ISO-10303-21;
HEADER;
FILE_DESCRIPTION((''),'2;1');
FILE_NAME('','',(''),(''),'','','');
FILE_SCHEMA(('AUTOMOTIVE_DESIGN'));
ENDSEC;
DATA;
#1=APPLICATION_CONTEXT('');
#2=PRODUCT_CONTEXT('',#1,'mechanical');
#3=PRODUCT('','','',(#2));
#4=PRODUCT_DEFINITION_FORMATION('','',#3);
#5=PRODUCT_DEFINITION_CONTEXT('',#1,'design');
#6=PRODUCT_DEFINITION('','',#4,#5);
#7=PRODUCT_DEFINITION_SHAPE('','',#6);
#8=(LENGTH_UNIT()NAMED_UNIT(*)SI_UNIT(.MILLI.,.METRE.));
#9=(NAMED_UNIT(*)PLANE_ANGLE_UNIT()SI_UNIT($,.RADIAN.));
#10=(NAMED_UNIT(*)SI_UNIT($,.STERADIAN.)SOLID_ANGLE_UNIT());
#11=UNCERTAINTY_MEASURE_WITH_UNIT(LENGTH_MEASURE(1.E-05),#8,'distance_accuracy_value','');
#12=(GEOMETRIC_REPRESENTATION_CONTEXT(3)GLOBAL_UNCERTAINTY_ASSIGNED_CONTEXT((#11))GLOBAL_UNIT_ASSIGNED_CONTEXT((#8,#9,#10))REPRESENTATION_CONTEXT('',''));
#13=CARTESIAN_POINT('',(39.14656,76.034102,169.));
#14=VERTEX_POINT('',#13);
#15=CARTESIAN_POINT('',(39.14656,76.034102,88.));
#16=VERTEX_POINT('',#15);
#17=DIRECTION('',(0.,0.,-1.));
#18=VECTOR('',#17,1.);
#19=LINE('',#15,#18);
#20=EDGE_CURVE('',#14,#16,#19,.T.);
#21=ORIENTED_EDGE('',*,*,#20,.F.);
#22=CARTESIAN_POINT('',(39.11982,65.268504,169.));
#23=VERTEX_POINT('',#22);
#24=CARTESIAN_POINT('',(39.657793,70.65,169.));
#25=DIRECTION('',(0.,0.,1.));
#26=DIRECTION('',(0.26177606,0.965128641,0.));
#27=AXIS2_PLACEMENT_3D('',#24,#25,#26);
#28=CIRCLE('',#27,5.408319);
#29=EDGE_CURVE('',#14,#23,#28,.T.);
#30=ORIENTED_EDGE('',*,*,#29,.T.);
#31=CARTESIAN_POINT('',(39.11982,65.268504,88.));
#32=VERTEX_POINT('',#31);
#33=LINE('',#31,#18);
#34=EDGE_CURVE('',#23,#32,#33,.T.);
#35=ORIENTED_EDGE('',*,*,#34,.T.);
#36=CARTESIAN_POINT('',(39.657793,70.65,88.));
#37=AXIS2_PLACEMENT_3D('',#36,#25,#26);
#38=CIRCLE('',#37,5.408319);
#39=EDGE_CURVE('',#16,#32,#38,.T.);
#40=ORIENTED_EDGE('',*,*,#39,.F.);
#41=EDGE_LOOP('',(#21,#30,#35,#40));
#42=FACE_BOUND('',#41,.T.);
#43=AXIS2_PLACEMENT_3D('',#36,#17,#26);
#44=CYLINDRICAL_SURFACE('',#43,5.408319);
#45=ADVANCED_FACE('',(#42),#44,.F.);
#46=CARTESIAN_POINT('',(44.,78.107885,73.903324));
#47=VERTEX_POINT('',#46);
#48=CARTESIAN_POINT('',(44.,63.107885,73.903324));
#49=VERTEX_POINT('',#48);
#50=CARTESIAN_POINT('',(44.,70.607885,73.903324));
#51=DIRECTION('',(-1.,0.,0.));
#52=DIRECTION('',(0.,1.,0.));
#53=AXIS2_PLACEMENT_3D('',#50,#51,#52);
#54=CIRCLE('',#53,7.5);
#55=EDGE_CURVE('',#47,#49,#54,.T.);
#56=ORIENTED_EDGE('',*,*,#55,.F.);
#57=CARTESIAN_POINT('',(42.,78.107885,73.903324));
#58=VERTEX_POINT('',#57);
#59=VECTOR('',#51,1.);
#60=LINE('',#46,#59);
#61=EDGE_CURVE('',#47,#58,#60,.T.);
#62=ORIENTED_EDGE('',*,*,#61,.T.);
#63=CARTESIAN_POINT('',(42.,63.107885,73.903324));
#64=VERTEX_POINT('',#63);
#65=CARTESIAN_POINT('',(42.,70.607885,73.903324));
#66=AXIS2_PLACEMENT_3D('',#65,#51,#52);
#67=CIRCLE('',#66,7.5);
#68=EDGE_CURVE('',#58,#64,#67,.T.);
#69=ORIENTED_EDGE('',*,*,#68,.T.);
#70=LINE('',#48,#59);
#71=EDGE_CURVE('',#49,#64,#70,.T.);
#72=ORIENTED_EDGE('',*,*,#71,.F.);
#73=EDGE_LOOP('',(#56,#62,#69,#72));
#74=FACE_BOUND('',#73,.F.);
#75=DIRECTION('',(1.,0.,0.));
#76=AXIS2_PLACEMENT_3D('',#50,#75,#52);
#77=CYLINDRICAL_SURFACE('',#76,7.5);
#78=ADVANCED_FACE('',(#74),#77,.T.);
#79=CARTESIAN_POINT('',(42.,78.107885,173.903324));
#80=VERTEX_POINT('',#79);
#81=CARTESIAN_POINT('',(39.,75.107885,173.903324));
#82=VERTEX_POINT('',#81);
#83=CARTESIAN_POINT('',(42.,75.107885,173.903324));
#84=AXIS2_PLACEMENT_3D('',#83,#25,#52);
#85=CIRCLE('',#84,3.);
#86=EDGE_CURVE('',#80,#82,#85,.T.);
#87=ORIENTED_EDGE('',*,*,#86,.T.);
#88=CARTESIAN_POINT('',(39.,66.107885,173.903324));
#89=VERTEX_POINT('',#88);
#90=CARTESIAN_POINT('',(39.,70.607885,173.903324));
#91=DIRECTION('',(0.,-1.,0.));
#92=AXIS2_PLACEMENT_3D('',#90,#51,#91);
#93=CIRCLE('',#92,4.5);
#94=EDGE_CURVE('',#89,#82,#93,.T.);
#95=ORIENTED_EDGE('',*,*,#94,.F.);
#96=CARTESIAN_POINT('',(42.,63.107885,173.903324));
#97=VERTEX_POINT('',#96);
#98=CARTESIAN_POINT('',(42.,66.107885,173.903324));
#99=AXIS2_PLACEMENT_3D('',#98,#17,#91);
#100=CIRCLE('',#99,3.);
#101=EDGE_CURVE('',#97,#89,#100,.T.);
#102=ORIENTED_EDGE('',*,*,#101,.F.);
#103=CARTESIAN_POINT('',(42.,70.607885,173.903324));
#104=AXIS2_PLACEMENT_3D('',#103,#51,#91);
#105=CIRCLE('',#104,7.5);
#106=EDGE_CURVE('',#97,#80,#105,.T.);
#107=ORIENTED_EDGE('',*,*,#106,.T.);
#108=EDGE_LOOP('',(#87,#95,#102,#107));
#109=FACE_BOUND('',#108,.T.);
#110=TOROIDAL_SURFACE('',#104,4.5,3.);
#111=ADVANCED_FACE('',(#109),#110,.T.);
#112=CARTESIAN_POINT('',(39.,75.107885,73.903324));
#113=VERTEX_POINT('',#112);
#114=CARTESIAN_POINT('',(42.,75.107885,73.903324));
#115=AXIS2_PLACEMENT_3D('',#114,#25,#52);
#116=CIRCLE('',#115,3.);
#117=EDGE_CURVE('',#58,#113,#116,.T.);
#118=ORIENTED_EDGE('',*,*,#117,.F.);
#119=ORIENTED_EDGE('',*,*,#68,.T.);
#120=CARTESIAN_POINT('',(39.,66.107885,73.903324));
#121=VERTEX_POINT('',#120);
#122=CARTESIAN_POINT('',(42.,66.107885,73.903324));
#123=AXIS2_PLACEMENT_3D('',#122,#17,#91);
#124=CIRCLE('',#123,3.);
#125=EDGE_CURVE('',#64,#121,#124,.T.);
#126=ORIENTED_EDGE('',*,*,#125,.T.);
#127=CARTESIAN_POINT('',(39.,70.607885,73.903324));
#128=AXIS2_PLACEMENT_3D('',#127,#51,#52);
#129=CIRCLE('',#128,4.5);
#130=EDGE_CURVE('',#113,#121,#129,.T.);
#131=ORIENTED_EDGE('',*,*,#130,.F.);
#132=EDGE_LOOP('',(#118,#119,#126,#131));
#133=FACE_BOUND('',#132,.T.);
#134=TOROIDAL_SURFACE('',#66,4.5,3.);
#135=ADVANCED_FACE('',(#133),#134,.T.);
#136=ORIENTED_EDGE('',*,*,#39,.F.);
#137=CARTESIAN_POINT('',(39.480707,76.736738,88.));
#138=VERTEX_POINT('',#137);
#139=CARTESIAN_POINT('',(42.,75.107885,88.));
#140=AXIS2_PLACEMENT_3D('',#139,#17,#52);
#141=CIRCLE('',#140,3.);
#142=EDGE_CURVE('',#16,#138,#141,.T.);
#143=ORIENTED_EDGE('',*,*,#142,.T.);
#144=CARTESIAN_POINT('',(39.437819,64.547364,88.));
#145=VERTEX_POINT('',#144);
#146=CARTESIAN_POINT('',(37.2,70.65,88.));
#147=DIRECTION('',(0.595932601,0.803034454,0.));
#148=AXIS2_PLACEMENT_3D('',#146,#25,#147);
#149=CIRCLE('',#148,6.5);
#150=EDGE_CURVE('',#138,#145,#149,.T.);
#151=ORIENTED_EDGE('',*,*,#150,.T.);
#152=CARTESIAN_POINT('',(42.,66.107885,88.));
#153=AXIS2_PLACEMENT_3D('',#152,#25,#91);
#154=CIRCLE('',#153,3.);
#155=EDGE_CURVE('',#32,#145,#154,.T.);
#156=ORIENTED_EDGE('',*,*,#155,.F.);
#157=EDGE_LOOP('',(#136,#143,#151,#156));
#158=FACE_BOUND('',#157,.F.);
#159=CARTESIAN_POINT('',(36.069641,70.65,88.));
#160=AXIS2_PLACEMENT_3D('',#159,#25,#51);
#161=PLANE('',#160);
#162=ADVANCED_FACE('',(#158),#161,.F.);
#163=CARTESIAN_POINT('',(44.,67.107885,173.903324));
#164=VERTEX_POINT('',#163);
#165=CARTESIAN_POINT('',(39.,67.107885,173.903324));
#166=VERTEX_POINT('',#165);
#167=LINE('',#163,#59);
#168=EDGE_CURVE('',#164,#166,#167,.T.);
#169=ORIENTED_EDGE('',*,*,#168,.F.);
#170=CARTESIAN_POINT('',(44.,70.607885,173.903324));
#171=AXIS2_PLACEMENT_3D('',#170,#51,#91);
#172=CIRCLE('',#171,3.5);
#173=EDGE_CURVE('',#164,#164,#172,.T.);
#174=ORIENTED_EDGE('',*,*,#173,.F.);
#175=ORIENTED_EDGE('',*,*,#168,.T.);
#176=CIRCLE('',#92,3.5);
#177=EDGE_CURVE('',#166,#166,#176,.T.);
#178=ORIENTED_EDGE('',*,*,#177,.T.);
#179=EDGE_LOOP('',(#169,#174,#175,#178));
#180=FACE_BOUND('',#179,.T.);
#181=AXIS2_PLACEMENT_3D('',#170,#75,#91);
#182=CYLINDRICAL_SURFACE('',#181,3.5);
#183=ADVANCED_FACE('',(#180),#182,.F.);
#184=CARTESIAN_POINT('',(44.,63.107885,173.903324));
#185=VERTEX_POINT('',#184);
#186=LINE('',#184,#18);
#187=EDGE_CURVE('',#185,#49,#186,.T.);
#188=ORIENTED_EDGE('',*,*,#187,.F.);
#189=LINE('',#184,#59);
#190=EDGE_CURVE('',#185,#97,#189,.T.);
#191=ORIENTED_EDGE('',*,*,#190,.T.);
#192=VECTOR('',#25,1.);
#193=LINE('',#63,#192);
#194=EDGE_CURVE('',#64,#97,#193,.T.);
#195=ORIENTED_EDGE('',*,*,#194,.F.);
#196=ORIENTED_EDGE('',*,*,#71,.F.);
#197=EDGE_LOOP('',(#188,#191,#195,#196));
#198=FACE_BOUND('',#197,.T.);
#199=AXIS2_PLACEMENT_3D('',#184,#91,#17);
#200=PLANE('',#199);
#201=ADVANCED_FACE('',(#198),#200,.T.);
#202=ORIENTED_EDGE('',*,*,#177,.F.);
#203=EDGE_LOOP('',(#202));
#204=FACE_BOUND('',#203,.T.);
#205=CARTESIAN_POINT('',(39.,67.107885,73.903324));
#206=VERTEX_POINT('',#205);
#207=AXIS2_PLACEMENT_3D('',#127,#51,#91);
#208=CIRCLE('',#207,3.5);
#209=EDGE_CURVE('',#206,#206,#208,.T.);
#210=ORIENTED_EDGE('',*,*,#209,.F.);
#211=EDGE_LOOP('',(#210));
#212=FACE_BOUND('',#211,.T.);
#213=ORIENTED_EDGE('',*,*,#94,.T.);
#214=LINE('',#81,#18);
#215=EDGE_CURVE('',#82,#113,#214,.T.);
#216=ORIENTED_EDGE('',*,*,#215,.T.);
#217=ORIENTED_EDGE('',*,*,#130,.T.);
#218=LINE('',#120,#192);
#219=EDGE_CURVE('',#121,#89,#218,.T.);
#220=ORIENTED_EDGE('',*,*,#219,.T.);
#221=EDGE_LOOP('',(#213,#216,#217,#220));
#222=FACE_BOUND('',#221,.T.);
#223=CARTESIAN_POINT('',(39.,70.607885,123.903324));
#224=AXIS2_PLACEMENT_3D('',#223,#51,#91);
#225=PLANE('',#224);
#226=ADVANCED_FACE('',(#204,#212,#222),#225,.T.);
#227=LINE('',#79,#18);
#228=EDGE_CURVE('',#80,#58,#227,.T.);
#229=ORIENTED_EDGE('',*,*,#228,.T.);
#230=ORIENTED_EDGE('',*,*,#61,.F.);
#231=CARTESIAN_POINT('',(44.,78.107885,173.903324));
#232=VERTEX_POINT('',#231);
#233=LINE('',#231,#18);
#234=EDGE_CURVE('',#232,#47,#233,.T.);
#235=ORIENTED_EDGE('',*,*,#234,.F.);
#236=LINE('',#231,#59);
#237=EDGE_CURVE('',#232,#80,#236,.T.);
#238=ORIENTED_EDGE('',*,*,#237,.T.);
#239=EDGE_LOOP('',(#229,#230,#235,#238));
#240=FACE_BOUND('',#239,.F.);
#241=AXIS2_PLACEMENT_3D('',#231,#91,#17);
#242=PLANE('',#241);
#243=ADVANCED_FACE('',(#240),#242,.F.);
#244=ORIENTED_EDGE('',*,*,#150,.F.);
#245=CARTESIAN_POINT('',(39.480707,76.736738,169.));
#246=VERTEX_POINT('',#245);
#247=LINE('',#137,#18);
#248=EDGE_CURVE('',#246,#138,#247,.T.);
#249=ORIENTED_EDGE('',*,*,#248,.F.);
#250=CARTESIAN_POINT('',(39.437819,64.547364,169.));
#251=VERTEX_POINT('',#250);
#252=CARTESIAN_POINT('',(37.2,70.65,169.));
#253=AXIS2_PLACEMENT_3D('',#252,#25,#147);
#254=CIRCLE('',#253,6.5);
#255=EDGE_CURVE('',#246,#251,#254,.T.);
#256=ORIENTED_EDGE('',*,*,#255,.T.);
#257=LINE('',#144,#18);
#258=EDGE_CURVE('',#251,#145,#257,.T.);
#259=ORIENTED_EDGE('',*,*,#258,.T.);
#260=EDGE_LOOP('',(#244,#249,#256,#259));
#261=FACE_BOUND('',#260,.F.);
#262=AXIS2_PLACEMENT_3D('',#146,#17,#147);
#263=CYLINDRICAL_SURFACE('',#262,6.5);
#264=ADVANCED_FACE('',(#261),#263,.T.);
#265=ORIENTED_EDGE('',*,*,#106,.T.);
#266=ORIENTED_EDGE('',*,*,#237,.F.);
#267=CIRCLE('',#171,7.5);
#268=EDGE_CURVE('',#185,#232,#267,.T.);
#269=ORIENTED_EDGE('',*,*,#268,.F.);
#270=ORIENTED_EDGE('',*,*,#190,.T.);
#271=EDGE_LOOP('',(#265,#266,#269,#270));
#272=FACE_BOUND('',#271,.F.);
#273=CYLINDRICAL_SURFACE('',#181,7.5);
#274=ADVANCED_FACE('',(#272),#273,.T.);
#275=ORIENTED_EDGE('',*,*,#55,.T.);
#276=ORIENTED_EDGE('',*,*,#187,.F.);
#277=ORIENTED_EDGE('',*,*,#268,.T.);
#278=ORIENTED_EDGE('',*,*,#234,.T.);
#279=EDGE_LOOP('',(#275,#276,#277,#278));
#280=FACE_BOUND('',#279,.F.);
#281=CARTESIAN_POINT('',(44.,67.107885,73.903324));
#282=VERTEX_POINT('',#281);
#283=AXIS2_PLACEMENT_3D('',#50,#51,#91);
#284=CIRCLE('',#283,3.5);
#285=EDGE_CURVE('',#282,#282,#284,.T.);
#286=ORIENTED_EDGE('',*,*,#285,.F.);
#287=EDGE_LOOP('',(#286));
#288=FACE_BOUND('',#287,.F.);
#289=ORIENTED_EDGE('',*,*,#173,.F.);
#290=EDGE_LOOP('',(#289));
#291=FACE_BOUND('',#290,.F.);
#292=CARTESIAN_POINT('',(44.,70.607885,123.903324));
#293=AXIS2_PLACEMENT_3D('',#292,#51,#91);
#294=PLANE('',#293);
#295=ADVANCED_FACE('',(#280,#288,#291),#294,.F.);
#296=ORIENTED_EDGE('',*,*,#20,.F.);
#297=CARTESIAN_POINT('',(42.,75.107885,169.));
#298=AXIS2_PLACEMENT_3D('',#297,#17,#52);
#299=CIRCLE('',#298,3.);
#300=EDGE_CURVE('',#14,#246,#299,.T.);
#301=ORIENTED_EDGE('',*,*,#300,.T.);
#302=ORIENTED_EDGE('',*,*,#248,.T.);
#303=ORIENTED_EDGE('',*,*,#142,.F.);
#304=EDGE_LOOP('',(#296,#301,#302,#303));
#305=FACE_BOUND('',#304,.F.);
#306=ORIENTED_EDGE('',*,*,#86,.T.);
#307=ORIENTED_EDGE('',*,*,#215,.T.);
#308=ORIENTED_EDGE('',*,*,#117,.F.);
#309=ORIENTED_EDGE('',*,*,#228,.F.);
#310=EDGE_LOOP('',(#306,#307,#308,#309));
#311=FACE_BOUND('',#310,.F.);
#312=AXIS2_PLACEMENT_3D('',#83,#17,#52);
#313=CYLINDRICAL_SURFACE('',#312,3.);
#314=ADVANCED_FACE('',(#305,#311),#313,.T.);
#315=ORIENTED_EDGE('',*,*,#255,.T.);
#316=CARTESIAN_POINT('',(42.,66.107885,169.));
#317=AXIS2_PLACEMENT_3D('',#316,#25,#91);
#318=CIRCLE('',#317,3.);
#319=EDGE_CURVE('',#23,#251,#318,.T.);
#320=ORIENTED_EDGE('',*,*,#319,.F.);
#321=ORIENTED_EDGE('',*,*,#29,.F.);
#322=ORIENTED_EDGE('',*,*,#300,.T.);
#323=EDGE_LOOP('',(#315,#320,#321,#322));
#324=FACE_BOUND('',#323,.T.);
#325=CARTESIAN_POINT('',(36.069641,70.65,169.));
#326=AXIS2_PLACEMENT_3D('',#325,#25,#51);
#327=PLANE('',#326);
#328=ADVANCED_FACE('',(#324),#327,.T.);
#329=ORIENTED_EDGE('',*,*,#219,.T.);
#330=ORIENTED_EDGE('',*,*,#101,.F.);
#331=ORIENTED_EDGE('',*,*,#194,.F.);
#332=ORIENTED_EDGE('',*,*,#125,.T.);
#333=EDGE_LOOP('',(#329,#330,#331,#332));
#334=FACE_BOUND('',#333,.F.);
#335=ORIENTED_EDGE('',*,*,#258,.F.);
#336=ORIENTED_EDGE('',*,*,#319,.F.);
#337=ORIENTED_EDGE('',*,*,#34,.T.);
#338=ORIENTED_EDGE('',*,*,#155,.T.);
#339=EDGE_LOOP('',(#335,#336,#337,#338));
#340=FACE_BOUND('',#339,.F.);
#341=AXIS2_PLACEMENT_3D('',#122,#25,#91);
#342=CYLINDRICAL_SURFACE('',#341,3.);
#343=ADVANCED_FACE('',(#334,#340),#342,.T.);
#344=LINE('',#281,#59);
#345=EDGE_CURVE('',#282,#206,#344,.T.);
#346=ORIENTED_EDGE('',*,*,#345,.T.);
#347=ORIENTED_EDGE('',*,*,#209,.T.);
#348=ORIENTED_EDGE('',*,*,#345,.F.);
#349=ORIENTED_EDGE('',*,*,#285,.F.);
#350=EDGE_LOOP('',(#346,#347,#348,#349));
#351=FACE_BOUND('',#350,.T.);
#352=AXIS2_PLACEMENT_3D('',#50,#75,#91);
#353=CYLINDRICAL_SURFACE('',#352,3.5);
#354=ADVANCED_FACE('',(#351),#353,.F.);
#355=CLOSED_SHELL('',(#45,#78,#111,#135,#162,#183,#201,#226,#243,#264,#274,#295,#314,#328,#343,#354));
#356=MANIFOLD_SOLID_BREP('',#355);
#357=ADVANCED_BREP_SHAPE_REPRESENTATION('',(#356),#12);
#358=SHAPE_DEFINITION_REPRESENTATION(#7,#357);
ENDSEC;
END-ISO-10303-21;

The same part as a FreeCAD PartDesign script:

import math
import FreeCAD as App
import Part
import Sketcher

V = App.Vector
Q = App.Units.Quantity


def edges_at(feature, points):
    """Names of the edges that pass closest to the given points."""
    edges = feature.Shape.Edges
    near = lambda p: min(range(len(edges)), key=lambda i: edges[i].distToShape(Part.Vertex(*p))[0])
    return sorted({f"Edge{near(p) + 1}" for p in points})

doc = App.newDocument("Part")
params = doc.addObject("Spreadsheet::Sheet", "Params")
for row, (alias, value) in enumerate([
    ("sketch1_diameter", "7 mm"),
    ("sketch1_radius", "7.5 mm"),
    ("sketch1_height", "100 mm"),
    ("pad1_length", "5 mm"),
    ("fillet_radius", "3 mm"),
    ("sketch2_radius", "6.5 mm"),
    ("pad2_length", "81 mm"),
], start=1):
    params.set(f"A{row}", alias)
    params.set(f"B{row}", "=" + value)
    params.setAlias(f"B{row}", alias)

body = doc.addObject("PartDesign::Body", "Body")

# Sketch on YZ plane
sketch1 = body.newObject("Sketcher::SketchObject", "Sketch")
sketch1.AttachmentSupport = (doc.getObject("YZ_Plane"), [""])
sketch1.MapMode = "FlatFace"
sketch1.addGeometry([
    Part.ArcOfCircle(Part.Circle(V(70.6, 173.9, 0), V(0, 0, 1), 7.5), math.radians(0), math.radians(180)),  # 0
    Part.LineSegment(V(78.1, 173.9, 0), V(78.1, 73.9, 0)),  # 1
    Part.ArcOfCircle(Part.Circle(V(70.6, 73.9, 0), V(0, 0, 1), 7.5), math.radians(180), math.radians(360)),  # 2
    Part.LineSegment(V(63.1, 73.9, 0), V(63.1, 173.9, 0)),  # 3
    Part.Circle(V(70.6, 73.9, 0), V(0, 0, 1), 3.5),  # 4
    Part.Circle(V(70.6, 173.9, 0), V(0, 0, 1), 3.5),  # 5
], False)
sketch1.addConstraint([
    Sketcher.Constraint("Tangent", 0, 1, 1, 1),
    Sketcher.Constraint("Tangent", 1, 2, 2, 2),
    Sketcher.Constraint("Tangent", 2, 1, 3, 1),
    Sketcher.Constraint("Tangent", 3, 2, 0, 2),
    Sketcher.Constraint("Vertical", 1),
    Sketcher.Constraint("Vertical", 3),
    Sketcher.Constraint("Coincident", 4, 3, 2, 3),
    Sketcher.Constraint("Coincident", 5, 3, 0, 3),
    Sketcher.Constraint("Equal", 4, 5),
    Sketcher.Constraint("Diameter", 4, Q("7 mm")),
    Sketcher.Constraint("Radius", 0, Q("7.5 mm")),
    Sketcher.Constraint("DistanceY", 1, 2, 1, 1, Q("100 mm")),
    Sketcher.Constraint("DistanceX", -1, 1, 0, 3, Q("70.607885 mm")),
    Sketcher.Constraint("DistanceY", -1, 1, 0, 3, Q("173.903324 mm")),
])
sketch1.setExpression("Constraints[9]", "Params.sketch1_diameter")
sketch1.setExpression("Constraints[10]", "Params.sketch1_radius")
sketch1.setExpression("Constraints[11]", "Params.sketch1_height")
pad1 = body.newObject("PartDesign::Pad", "Pad")
pad1.Profile = sketch1
pad1.setExpression("Length", "Params.pad1_length")
pad1.Reversed = True
body2 = doc.addObject("PartDesign::Body", "Body001")
doc.recompute()

body.Placement = App.Placement(V(48, 0, 0), App.Rotation(V(0, 0, 1), 0))
boolean = body2.newObject("PartDesign::Boolean", "Boolean")
boolean.Type = "Fuse"
boolean.addObjects([body])
doc.recompute()

fillet = body2.newObject("PartDesign::Fillet", "Fillet")
fillet.Base = (boolean, edges_at(boolean, [(43, 78.108, 123.903)]))
fillet.setExpression("Radius", "Params.fillet_radius")
body3 = doc.addObject("PartDesign::Body", "Body002")

# Sketch on XZ plane
sketch2 = body3.newObject("Sketcher::SketchObject", "Sketch001")
sketch2.AttachmentSupport = (doc.getObject("XZ_Plane002"), [""])
sketch2.MapMode = "FlatFace"
sketch2.addGeometry([
    Part.ArcOfCircle(Part.Circle(V(0, 0, 0), V(0, 0, 1), 7), math.radians(-127), math.radians(127)),
    Part.ArcOfCircle(Part.Circle(V(-2, 0, 0), V(0, 0, 1), 5), math.radians(-105), math.radians(105)),
], False)
sketch2.addConstraint([
    Sketcher.Constraint("Coincident", 0, 1, 1, 1),
    Sketcher.Constraint("Coincident", 1, 2, 0, 2),
    Sketcher.Constraint("Coincident", 0, 3, -1, 1),
    Sketcher.Constraint("PointOnObject", 1, 3, -1),
    Sketcher.Constraint("Radius", 0, Q("6.5 mm")),
    Sketcher.Constraint("Radius", 1, Q("5.408319 mm")),
    Sketcher.Constraint("DistanceX", 0, 1, -1, 1, Q("3.873562 mm")),
])
sketch2.setExpression("Constraints[4]", "Params.sketch2_radius")
pad2 = body3.newObject("PartDesign::Pad", "Pad001")
pad2.Profile = sketch2
pad2.setExpression("Length", "Params.pad2_length")
body4 = doc.addObject("PartDesign::Body", "Body003")
doc.recompute()

body3.Placement = App.Placement(V(0, 0, 0), App.Rotation(V(1, 0, 0), 270))
boolean2 = body4.newObject("PartDesign::Boolean", "Boolean001")
boolean2.Type = "Fuse"
boolean2.addObjects([body3])
body5 = doc.addObject("PartDesign::Body", "Body004")
doc.recompute()

body4.Placement = App.Placement(V(41.2, 70.65, 88), App.Rotation(V(0, 0, 1), 180))
boolean3 = body5.newObject("PartDesign::Boolean", "Boolean002")
boolean3.Type = "Fuse"
boolean3.addObjects([body4])
doc.recompute()

boolean4 = body5.newObject("PartDesign::Boolean", "Boolean003")
boolean4.Type = "Fuse"
boolean4.addObjects([body2])
body6 = doc.addObject("PartDesign::Body", "Body005")
doc.recompute()

body5.Placement = App.Placement(V(-4, 0, 0), App.Rotation(V(0, 0, 1), 0))
boolean5 = body6.newObject("PartDesign::Boolean", "Boolean004")
boolean5.Type = "Fuse"
boolean5.addObjects([body5])

doc.recompute()
